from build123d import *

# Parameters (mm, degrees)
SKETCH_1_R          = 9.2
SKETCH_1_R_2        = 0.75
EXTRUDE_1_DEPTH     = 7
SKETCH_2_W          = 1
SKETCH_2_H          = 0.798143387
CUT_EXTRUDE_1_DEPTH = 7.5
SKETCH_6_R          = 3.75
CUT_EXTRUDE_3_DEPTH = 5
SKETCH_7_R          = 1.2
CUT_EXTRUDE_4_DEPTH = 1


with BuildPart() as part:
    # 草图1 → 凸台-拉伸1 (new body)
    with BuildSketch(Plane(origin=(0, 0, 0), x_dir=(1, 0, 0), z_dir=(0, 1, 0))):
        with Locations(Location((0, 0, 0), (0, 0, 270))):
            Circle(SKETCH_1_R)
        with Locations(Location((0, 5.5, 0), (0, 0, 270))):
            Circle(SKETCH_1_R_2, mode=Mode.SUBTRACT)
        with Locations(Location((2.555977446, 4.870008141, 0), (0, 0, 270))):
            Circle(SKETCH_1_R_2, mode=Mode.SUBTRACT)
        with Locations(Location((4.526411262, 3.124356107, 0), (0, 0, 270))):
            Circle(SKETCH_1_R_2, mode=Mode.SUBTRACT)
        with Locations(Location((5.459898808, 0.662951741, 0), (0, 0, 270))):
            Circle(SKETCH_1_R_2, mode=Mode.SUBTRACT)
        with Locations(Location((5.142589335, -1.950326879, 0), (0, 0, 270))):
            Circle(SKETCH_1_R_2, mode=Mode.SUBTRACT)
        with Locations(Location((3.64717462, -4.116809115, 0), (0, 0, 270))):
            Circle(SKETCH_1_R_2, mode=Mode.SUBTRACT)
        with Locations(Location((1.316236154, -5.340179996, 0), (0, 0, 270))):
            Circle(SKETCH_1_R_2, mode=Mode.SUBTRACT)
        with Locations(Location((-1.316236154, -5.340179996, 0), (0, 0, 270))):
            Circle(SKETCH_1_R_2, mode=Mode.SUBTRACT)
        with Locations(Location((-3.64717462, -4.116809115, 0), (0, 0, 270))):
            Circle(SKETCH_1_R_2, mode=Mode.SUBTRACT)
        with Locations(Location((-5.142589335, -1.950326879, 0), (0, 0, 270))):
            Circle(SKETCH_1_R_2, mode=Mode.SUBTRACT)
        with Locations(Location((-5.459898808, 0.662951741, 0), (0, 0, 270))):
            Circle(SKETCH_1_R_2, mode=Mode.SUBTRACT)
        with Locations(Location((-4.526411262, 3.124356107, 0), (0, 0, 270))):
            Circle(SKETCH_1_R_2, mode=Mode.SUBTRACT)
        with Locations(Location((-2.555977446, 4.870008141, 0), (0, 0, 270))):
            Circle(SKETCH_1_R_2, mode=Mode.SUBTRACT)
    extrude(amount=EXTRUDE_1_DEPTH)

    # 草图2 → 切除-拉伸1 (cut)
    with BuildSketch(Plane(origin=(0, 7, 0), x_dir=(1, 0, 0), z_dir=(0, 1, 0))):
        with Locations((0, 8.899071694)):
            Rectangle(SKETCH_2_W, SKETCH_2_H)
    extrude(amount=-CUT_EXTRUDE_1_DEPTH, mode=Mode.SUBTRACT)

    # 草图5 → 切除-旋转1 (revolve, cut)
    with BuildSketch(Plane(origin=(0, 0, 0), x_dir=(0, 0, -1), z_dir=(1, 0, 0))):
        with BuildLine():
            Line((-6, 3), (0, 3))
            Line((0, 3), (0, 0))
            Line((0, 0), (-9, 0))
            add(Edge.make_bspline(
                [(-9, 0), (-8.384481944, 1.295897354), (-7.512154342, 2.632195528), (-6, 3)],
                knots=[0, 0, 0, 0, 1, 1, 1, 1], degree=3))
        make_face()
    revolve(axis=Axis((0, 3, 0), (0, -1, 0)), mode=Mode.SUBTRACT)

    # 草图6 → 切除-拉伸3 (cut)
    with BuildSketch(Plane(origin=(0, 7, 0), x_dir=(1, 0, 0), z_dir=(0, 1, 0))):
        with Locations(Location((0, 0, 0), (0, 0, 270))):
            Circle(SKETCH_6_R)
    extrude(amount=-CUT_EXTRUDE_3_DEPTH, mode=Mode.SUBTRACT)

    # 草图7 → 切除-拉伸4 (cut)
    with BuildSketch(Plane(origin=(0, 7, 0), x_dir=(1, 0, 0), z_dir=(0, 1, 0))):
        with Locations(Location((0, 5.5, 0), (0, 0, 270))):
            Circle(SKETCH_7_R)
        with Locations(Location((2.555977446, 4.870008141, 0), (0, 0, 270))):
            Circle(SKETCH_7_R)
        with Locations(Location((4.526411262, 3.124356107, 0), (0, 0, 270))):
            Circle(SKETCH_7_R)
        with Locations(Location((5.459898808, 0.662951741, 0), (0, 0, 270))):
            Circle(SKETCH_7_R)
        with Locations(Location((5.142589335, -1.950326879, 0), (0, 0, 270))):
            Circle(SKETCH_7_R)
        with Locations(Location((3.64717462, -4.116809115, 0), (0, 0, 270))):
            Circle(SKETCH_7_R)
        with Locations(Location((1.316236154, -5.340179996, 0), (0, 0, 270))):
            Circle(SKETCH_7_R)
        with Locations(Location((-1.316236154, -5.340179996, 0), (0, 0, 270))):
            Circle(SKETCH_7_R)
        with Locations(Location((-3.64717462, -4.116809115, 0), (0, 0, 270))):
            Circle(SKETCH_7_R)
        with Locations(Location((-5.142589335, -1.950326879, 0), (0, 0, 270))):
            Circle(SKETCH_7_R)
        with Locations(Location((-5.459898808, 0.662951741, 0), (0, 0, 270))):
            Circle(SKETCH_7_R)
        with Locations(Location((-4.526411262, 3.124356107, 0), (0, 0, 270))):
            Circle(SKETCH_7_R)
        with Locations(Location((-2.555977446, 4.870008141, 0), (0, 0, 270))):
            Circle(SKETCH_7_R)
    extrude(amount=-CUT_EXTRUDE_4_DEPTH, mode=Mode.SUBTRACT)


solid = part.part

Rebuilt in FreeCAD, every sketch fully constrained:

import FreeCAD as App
import Part
import Sketcher
from FreeCAD import Vector


def add_polygon(sketch, points):
    """Adds a closed chain of lines whose ends are joined by coincident constraints."""
    first, n = sketch.GeometryCount, len(points)
    for a, b in zip(points, points[1:] + points[:1]):
        sketch.addGeometry(Part.LineSegment(App.Vector(*a, 0), App.Vector(*b, 0)), False)
    for i in range(n):
        sketch.addConstraint(Sketcher.Constraint("Coincident", first + i, 2, first + (i + 1) % n, 1))

doc = App.newDocument("Part")
body = doc.addObject("PartDesign::Body", "Body")

sketch1 = body.newObject("Sketcher::SketchObject", "Sketch")
sketch1.AttachmentSupport = (doc.getObject("XZ_Plane"), [""])
sketch1.MapMode = "FlatFace"
sketch1.addGeometry(Part.Circle(Vector(0, 0, 0), Vector(0, 0, 1), 9.2), False)
sketch1.addGeometry(Part.Circle(Vector(-5.5, -0.7, 0), Vector(0, 0, 1), 0.8), False)
sketch1.addGeometry(Part.Circle(Vector(-4.5, -3.1, 0), Vector(0, 0, 1), 0.8), False)
sketch1.addGeometry(Part.Circle(Vector(-2.6, -4.9, 0), Vector(0, 0, 1), 0.8), False)
sketch1.addGeometry(Part.Circle(Vector(0, -5.5, 0), Vector(0, 0, 1), 0.8), False)
sketch1.addGeometry(Part.Circle(Vector(-5.1, 2, 0), Vector(0, 0, 1), 0.8), False)
sketch1.addGeometry(Part.Circle(Vector(-3.6, 4.1, 0), Vector(0, 0, 1), 0.8), False)
sketch1.addGeometry(Part.Circle(Vector(-1.3, 5.3, 0), Vector(0, 0, 1), 0.8), False)
sketch1.addGeometry(Part.Circle(Vector(2.6, -4.9, 0), Vector(0, 0, 1), 0.8), False)
sketch1.addGeometry(Part.Circle(Vector(4.5, -3.1, 0), Vector(0, 0, 1), 0.8), False)
sketch1.addGeometry(Part.Circle(Vector(5.5, -0.7, 0), Vector(0, 0, 1), 0.8), False)
sketch1.addGeometry(Part.Circle(Vector(1.3, 5.3, 0), Vector(0, 0, 1), 0.8), False)
sketch1.addGeometry(Part.Circle(Vector(5.1, 2, 0), Vector(0, 0, 1), 0.8), False)
sketch1.addGeometry(Part.Circle(Vector(3.6, 4.1, 0), Vector(0, 0, 1), 0.8), False)
sketch1.addConstraint(Sketcher.Constraint("Coincident", 0, 3, -1, 1))
sketch1.addConstraint(Sketcher.Constraint("Equal", 1, 2))
sketch1.addConstraint(Sketcher.Constraint("Equal", 2, 3))
sketch1.addConstraint(Sketcher.Constraint("Equal", 3, 4))
sketch1.addConstraint(Sketcher.Constraint("Equal", 4, 5))
sketch1.addConstraint(Sketcher.Constraint("Equal", 5, 6))
sketch1.addConstraint(Sketcher.Constraint("Equal", 6, 7))
sketch1.addConstraint(Sketcher.Constraint("Equal", 7, 8))
sketch1.addConstraint(Sketcher.Constraint("Equal", 8, 9))
sketch1.addConstraint(Sketcher.Constraint("Equal", 9, 10))
sketch1.addConstraint(Sketcher.Constraint("Equal", 10, 11))
sketch1.addConstraint(Sketcher.Constraint("Equal", 11, 12))
sketch1.addConstraint(Sketcher.Constraint("Equal", 12, 13))
sketch1.addConstraint(Sketcher.Constraint("Symmetric", 3, 3, 8, 3, -2))
sketch1.addConstraint(Sketcher.Constraint("Symmetric", 2, 3, 9, 3, -2))
sketch1.addConstraint(Sketcher.Constraint("Symmetric", 1, 3, 10, 3, -2))
sketch1.addConstraint(Sketcher.Constraint("Symmetric", 7, 3, 11, 3, -2))
sketch1.addConstraint(Sketcher.Constraint("Symmetric", 5, 3, 12, 3, -2))
sketch1.addConstraint(Sketcher.Constraint("Symmetric", 6, 3, 13, 3, -2))
sketch1.addConstraint(Sketcher.Constraint("PointOnObject", 4, 3, -2))
sketch1.addConstraint(Sketcher.Constraint("Diameter", 0, 18.4))
sketch1.addConstraint(Sketcher.Constraint("Diameter", 1, 1.5))
sketch1.addConstraint(Sketcher.Constraint("DistanceY", 4, 3, -1, 1, 5.5))
sketch1.addConstraint(Sketcher.Constraint("DistanceX", 1, 3, -1, 1, 5.459899))
sketch1.addConstraint(Sketcher.Constraint("DistanceY", 1, 3, -1, 1, 0.662952))
sketch1.addConstraint(Sketcher.Constraint("DistanceX", 2, 3, -1, 1, 4.526411))
sketch1.addConstraint(Sketcher.Constraint("DistanceY", 3, 3, -1, 1, 4.870008))
sketch1.addConstraint(Sketcher.Constraint("DistanceX", 5, 3, -1, 1, 5.142589))
sketch1.addConstraint(Sketcher.Constraint("DistanceY", -1, 1, 6, 3, 4.116809))
sketch1.addConstraint(Sketcher.Constraint("DistanceY", -1, 1, 7, 3, 5.34018))
sketch1.addConstraint(Sketcher.Constraint("DistanceX", 1, 3, 3, 3, 2.903921))
sketch1.addConstraint(Sketcher.Constraint("DistanceY", 1, 3, 5, 3, 2.613279))
sketch1.addConstraint(Sketcher.Constraint("DistanceX", 6, 3, 7, 3, 2.330938))
sketch1.addConstraint(Sketcher.Constraint("DistanceX", 6, 3, 11, 3, 4.963411))
sketch1.addConstraint(Sketcher.Constraint("DistanceY", 2, 3, -1, 1, 3.124356))
pad1 = body.newObject("PartDesign::Pad", "Pad")
pad1.Profile = sketch1
pad1.Length = 7
pad1.Reversed = True

sketch2 = body.newObject("Sketcher::SketchObject", "Sketch001")
sketch2.AttachmentSupport = (doc.getObject("XZ_Plane"), [""])
sketch2.MapMode = "FlatFace"
sketch2.AttachmentOffset = App.Placement(Vector(0, 0, -7), App.Rotation())
add_polygon(sketch2, [(-0.5, -9.3), (-0.5, -8.5), (0.5, -8.5), (0.5, -9.3)])
sketch2.addConstraint(Sketcher.Constraint("Vertical", 0))
sketch2.addConstraint(Sketcher.Constraint("Horizontal", 1))
sketch2.addConstraint(Sketcher.Constraint("Vertical", 2))
sketch2.addConstraint(Sketcher.Constraint("Horizontal", 3))
sketch2.addConstraint(Sketcher.Constraint("DistanceX", 1, 1, 1, 2, 1.0))
sketch2.addConstraint(Sketcher.Constraint("DistanceX", 0, 2, -1, 1, 0.5))
sketch2.addConstraint(Sketcher.Constraint("DistanceY", 0, 2, -1, 1, 8.5))
sketch2.addConstraint(Sketcher.Constraint("DistanceY", 0, 1, 0, 2, 0.798143))
pocket1 = body.newObject("PartDesign::Pocket", "Pocket")
pocket1.Profile = sketch2
pocket1.Length = 7.5
pocket1.Reversed = True

sketch3 = body.newObject("Sketcher::SketchObject", "Sketch002")
sketch3.AttachmentSupport = (doc.getObject("YZ_Plane"), [""])
sketch3.MapMode = "FlatFace"
sketch3.addGeometry(Part.LineSegment(Vector(3, 0, 0), Vector(3, 6, 0)), False)
sketch3.addGeometry(Part.BSplineCurve([Vector(0, 9, 0), Vector(1.295897, 8.384482, 0), Vector(2.632196, 7.512154, 0), Vector(3, 6, 0)], [4, 4], [0, 1], False, 3, [1, 1, 1, 1], False), False)
sketch3.addGeometry(Part.LineSegment(Vector(0, 9, 0), Vector(0, 0, 0)), False)
sketch3.addGeometry(Part.LineSegment(Vector(0, 0, 0), Vector(3, 0, 0)), False)
sketch3.addConstraint(Sketcher.Constraint("Block", 1))
sketch3.addConstraint(Sketcher.Constraint("Coincident", 0, 2, 1, 2))
sketch3.addConstraint(Sketcher.Constraint("Coincident", 1, 1, 2, 1))
sketch3.addConstraint(Sketcher.Constraint("Coincident", 2, 2, 3, 1))
sketch3.addConstraint(Sketcher.Constraint("Coincident", 3, 2, 0, 1))
sketch3.addConstraint(Sketcher.Constraint("Vertical", 0))
sketch3.addConstraint(Sketcher.Constraint("Vertical", 2))
sketch3.addConstraint(Sketcher.Constraint("Horizontal", 3))
sketch3.addConstraint(Sketcher.Constraint("PointOnObject", 3, 2, -1))
groove = body.newObject("PartDesign::Groove", "Groove")
groove.Profile = sketch3
groove.ReferenceAxis = (sketch3, ["H_Axis"])
groove.Angle = 360

sketch4 = body.newObject("Sketcher::SketchObject", "Sketch003")
sketch4.AttachmentSupport = (doc.getObject("XZ_Plane"), [""])
sketch4.MapMode = "FlatFace"
sketch4.AttachmentOffset = App.Placement(Vector(0, 0, -7), App.Rotation())
sketch4.addGeometry(Part.Circle(Vector(0, 0, 0), Vector(0, 0, 1), 3.8), False)
sketch4.addConstraint(Sketcher.Constraint("Coincident", 0, 3, -1, 1))
sketch4.addConstraint(Sketcher.Constraint("Diameter", 0, 7.5))
pocket2 = body.newObject("PartDesign::Pocket", "Pocket001")
pocket2.Profile = sketch4
pocket2.Length = 5
pocket2.Reversed = True

sketch5 = body.newObject("Sketcher::SketchObject", "Sketch004")
sketch5.AttachmentSupport = (doc.getObject("XZ_Plane"), [""])
sketch5.MapMode = "FlatFace"
sketch5.AttachmentOffset = App.Placement(Vector(0, 0, -7), App.Rotation())
sketch5.addGeometry(Part.Circle(Vector(0, -5.5, 0), Vector(0, 0, 1), 1.2), False)
sketch5.addGeometry(Part.Circle(Vector(2.6, -4.9, 0), Vector(0, 0, 1), 1.2), False)
sketch5.addGeometry(Part.Circle(Vector(4.5, -3.1, 0), Vector(0, 0, 1), 1.2), False)
sketch5.addGeometry(Part.Circle(Vector(5.5, -0.7, 0), Vector(0, 0, 1), 1.2), False)
sketch5.addGeometry(Part.Circle(Vector(5.1, 2, 0), Vector(0, 0, 1), 1.2), False)
sketch5.addGeometry(Part.Circle(Vector(3.6, 4.1, 0), Vector(0, 0, 1), 1.2), False)
sketch5.addGeometry(Part.Circle(Vector(1.3, 5.3, 0), Vector(0, 0, 1), 1.2), False)
sketch5.addGeometry(Part.Circle(Vector(-1.3, 5.3, 0), Vector(0, 0, 1), 1.2), False)
sketch5.addGeometry(Part.Circle(Vector(-3.6, 4.1, 0), Vector(0, 0, 1), 1.2), False)
sketch5.addGeometry(Part.Circle(Vector(-5.1, 2, 0), Vector(0, 0, 1), 1.2), False)
sketch5.addGeometry(Part.Circle(Vector(-5.5, -0.7, 0), Vector(0, 0, 1), 1.2), False)
sketch5.addGeometry(Part.Circle(Vector(-4.5, -3.1, 0), Vector(0, 0, 1), 1.2), False)
sketch5.addGeometry(Part.Circle(Vector(-2.6, -4.9, 0), Vector(0, 0, 1), 1.2), False)
sketch5.addConstraint(Sketcher.Constraint("Equal", 0, 1))
sketch5.addConstraint(Sketcher.Constraint("Equal", 1, 2))
sketch5.addConstraint(Sketcher.Constraint("Equal", 2, 3))
sketch5.addConstraint(Sketcher.Constraint("Equal", 3, 4))
sketch5.addConstraint(Sketcher.Constraint("Equal", 4, 5))
sketch5.addConstraint(Sketcher.Constraint("Equal", 5, 6))
sketch5.addConstraint(Sketcher.Constraint("Equal", 6, 7))
sketch5.addConstraint(Sketcher.Constraint("Equal", 7, 8))
sketch5.addConstraint(Sketcher.Constraint("Equal", 8, 9))
sketch5.addConstraint(Sketcher.Constraint("Equal", 9, 10))
sketch5.addConstraint(Sketcher.Constraint("Equal", 10, 11))
sketch5.addConstraint(Sketcher.Constraint("Equal", 11, 12))
sketch5.addConstraint(Sketcher.Constraint("Symmetric", 6, 3, 7, 3, -2))
sketch5.addConstraint(Sketcher.Constraint("Symmetric", 5, 3, 8, 3, -2))
sketch5.addConstraint(Sketcher.Constraint("Symmetric", 4, 3, 9, 3, -2))
sketch5.addConstraint(Sketcher.Constraint("Symmetric", 3, 3, 10, 3, -2))
sketch5.addConstraint(Sketcher.Constraint("Symmetric", 2, 3, 11, 3, -2))
sketch5.addConstraint(Sketcher.Constraint("Symmetric", 1, 3, 12, 3, -2))
sketch5.addConstraint(Sketcher.Constraint("PointOnObject", 0, 3, -2))
sketch5.addConstraint(Sketcher.Constraint("Diameter", 0, 2.4))
sketch5.addConstraint(Sketcher.Constraint("DistanceY", 0, 3, -1, 1, 5.5))
sketch5.addConstraint(Sketcher.Constraint("DistanceX", -1, 1, 3, 3, 5.459899))
sketch5.addConstraint(Sketcher.Constraint("DistanceY", 1, 3, -1, 1, 4.870008))
sketch5.addConstraint(Sketcher.Constraint("DistanceX", -1, 1, 2, 3, 4.526411))
sketch5.addConstraint(Sketcher.Constraint("DistanceY", 3, 3, -1, 1, 0.662952))
sketch5.addConstraint(Sketcher.Constraint("DistanceX", -1, 1, 4, 3, 5.142589))
sketch5.addConstraint(Sketcher.Constraint("DistanceY", -1, 1, 5, 3, 4.116809))
sketch5.addConstraint(Sketcher.Constraint("DistanceY", -1, 1, 6, 3, 5.34018))
sketch5.addConstraint(Sketcher.Constraint("DistanceX", 1, 3, 3, 3, 2.903921))
sketch5.addConstraint(Sketcher.Constraint("DistanceY", 3, 3, 4, 3, 2.613279))
sketch5.addConstraint(Sketcher.Constraint("DistanceX", 6, 3, 5, 3, 2.330938))
sketch5.addConstraint(Sketcher.Constraint("DistanceX", 6, 3, 1, 3, 1.239741))
sketch5.addConstraint(Sketcher.Constraint("DistanceY", 2, 3, -1, 1, 3.124356))
pocket3 = body.newObject("PartDesign::Pocket", "Pocket002")
pocket3.Profile = sketch5
pocket3.Length = 1
pocket3.Reversed = True

doc.recompute()
